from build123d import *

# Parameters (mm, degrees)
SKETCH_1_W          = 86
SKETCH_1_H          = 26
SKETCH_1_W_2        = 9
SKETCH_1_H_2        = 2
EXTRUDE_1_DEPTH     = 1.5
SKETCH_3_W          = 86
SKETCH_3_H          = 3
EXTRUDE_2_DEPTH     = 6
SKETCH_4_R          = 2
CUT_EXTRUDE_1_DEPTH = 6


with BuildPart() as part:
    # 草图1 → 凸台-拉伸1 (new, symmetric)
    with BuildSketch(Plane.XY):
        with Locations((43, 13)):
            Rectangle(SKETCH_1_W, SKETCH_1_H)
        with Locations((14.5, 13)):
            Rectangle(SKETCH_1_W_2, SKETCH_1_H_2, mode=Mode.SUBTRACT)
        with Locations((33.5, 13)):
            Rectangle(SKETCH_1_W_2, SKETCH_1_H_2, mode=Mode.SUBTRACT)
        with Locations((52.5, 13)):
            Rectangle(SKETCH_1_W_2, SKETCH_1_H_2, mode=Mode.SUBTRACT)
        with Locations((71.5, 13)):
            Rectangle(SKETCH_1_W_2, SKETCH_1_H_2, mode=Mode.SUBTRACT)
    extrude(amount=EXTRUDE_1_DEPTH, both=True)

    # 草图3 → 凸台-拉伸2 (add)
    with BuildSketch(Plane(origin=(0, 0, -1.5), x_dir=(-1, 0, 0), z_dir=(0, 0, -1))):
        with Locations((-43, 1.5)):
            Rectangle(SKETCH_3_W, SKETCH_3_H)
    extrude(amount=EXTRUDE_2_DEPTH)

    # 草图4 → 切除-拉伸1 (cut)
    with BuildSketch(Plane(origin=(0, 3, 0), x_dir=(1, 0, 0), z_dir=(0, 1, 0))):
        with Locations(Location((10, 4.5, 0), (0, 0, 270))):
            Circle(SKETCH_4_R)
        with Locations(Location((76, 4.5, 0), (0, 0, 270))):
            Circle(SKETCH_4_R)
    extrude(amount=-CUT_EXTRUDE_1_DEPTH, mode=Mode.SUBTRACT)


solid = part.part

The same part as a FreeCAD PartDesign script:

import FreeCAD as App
import Part
import Sketcher
Q = App.Units.Quantity


def add_polygon(sketch, points):
    """Adds a closed chain of lines whose ends are joined by coincident constraints."""
    first, n = sketch.GeometryCount, len(points)
    for a, b in zip(points, points[1:] + points[:1]):
        sketch.addGeometry(Part.LineSegment(App.Vector(*a, 0), App.Vector(*b, 0)), False)
    for i in range(n):
        sketch.addConstraint(Sketcher.Constraint("Coincident", first + i, 2, first + (i + 1) % n, 1))

doc = App.newDocument("Part")
body = doc.addObject("PartDesign::Body", "Body")

sketch1 = body.newObject("Sketcher::SketchObject", "Sketch")
sketch1.AttachmentSupport = (doc.getObject("XY_Plane"), [""])
sketch1.MapMode = "FlatFace"
add_polygon(sketch1, [(0, 26), (0, 0), (86, 0), (86, 26)])
add_polygon(sketch1, [(19, 12), (10, 12), (10, 14), (19, 14)])
add_polygon(sketch1, [(38, 12), (29, 12), (29, 14), (38, 14)])
add_polygon(sketch1, [(57, 12), (48, 12), (48, 14), (57, 14)])
add_polygon(sketch1, [(76, 12), (67, 12), (67, 14), (76, 14)])
sketch1.addConstraint(Sketcher.Constraint("Vertical", 0))
sketch1.addConstraint(Sketcher.Constraint("Horizontal", 1))
sketch1.addConstraint(Sketcher.Constraint("Vertical", 2))
sketch1.addConstraint(Sketcher.Constraint("Horizontal", 3))
sketch1.addConstraint(Sketcher.Constraint("Horizontal", 4))
sketch1.addConstraint(Sketcher.Constraint("Vertical", 5))
sketch1.addConstraint(Sketcher.Constraint("Horizontal", 6))
sketch1.addConstraint(Sketcher.Constraint("Vertical", 7))
sketch1.addConstraint(Sketcher.Constraint("Horizontal", 8))
sketch1.addConstraint(Sketcher.Constraint("Vertical", 9))
sketch1.addConstraint(Sketcher.Constraint("Horizontal", 10))
sketch1.addConstraint(Sketcher.Constraint("Vertical", 11))
sketch1.addConstraint(Sketcher.Constraint("Horizontal", 12))
sketch1.addConstraint(Sketcher.Constraint("Vertical", 13))
sketch1.addConstraint(Sketcher.Constraint("Horizontal", 14))
sketch1.addConstraint(Sketcher.Constraint("Vertical", 15))
sketch1.addConstraint(Sketcher.Constraint("Horizontal", 16))
sketch1.addConstraint(Sketcher.Constraint("Vertical", 17))
sketch1.addConstraint(Sketcher.Constraint("Horizontal", 18))
sketch1.addConstraint(Sketcher.Constraint("Vertical", 19))
sketch1.addConstraint(Sketcher.Constraint("Coincident", 0, 2, -1, 1))
sketch1.addConstraint(Sketcher.Constraint("Horizontal", 7, 2, 8, 2))
sketch1.addConstraint(Sketcher.Constraint("Horizontal", 6, 2, 9, 2))
sketch1.addConstraint(Sketcher.Constraint("Horizontal", 11, 2, 12, 2))
sketch1.addConstraint(Sketcher.Constraint("Horizontal", 10, 2, 13, 2))
sketch1.addConstraint(Sketcher.Constraint("Horizontal", 15, 2, 16, 2))
sketch1.addConstraint(Sketcher.Constraint("Horizontal", 14, 2, 17, 2))
sketch1.addConstraint(Sketcher.Constraint("Equal", 6, 8))
sketch1.addConstraint(Sketcher.Constraint("Equal", 10, 12))
sketch1.addConstraint(Sketcher.Constraint("Equal", 14, 16))
sketch1.addConstraint(Sketcher.Constraint("DistanceX", 1, 1, 1, 2, Q("86 mm")))
sketch1.addConstraint(Sketcher.Constraint("DistanceX", 4, 2, 4, 1, Q("9 mm")))
sketch1.addConstraint(Sketcher.Constraint("DistanceY", 0, 2, 0, 1, Q("26 mm")))
sketch1.addConstraint(Sketcher.Constraint("DistanceY", 5, 1, 5, 2, Q("2 mm")))
sketch1.addConstraint(Sketcher.Constraint("DistanceX", -1, 1, 4, 2, Q("10 mm")))
sketch1.addConstraint(Sketcher.Constraint("DistanceY", -1, 1, 4, 2, Q("12 mm")))
sketch1.addConstraint(Sketcher.Constraint("DistanceX", -1, 1, 8, 2, Q("29 mm")))
sketch1.addConstraint(Sketcher.Constraint("DistanceX", -1, 1, 12, 2, Q("48 mm")))
sketch1.addConstraint(Sketcher.Constraint("DistanceX", -1, 1, 16, 2, Q("67 mm")))
pad1 = body.newObject("PartDesign::Pad", "Pad")
pad1.Profile = sketch1
pad1.Length = 3
pad1.Midplane = True

sketch2 = body.newObject("Sketcher::SketchObject", "Sketch001")
sketch2.AttachmentSupport = (doc.getObject("XY_Plane"), [""])
sketch2.MapMode = "FlatFace"
sketch2.AttachmentOffset = App.Placement(App.Vector(0, 0, -1.5), App.Rotation())
add_polygon(sketch2, [(86, 3), (86, 0), (0, 0), (0, 3)])
sketch2.addConstraint(Sketcher.Constraint("Vertical", 0))
sketch2.addConstraint(Sketcher.Constraint("Horizontal", 1))
sketch2.addConstraint(Sketcher.Constraint("Vertical", 2))
sketch2.addConstraint(Sketcher.Constraint("Horizontal", 3))
sketch2.addConstraint(Sketcher.Constraint("Coincident", 1, 2, -1, 1))
sketch2.addConstraint(Sketcher.Constraint("DistanceX", 1, 2, 1, 1, Q("86 mm")))
sketch2.addConstraint(Sketcher.Constraint("DistanceY", 0, 2, 0, 1, Q("3 mm")))
pad2 = body.newObject("PartDesign::Pad", "Pad001")
pad2.Profile = sketch2
pad2.Length = 6
pad2.Reversed = True

sketch3 = body.newObject("Sketcher::SketchObject", "Sketch002")
sketch3.AttachmentSupport = (doc.getObject("XZ_Plane"), [""])
sketch3.MapMode = "FlatFace"
sketch3.AttachmentOffset = App.Placement(App.Vector(0, 0, -3), App.Rotation())
sketch3.addGeometry(Part.Circle(App.Vector(10, -4.5, 0), App.Vector(0, 0, 1), 2), False)
sketch3.addGeometry(Part.Circle(App.Vector(76, -4.5, 0), App.Vector(0, 0, 1), 2), False)
sketch3.addConstraint(Sketcher.Constraint("Equal", 0, 1))
sketch3.addConstraint(Sketcher.Constraint("Horizontal", 0, 3, 1, 3))
sketch3.addConstraint(Sketcher.Constraint("Diameter", 0, Q("4 mm")))
sketch3.addConstraint(Sketcher.Constraint("DistanceX", -1, 1, 0, 3, Q("10 mm")))
sketch3.addConstraint(Sketcher.Constraint("DistanceX", -1, 1, 1, 3, Q("76 mm")))
sketch3.addConstraint(Sketcher.Constraint("DistanceY", 0, 3, -1, 1, Q("4.5 mm")))
pocket1 = body.newObject("PartDesign::Pocket", "Pocket")
pocket1.Profile = sketch3
pocket1.Length = 6
pocket1.Reversed = True

doc.recompute()
